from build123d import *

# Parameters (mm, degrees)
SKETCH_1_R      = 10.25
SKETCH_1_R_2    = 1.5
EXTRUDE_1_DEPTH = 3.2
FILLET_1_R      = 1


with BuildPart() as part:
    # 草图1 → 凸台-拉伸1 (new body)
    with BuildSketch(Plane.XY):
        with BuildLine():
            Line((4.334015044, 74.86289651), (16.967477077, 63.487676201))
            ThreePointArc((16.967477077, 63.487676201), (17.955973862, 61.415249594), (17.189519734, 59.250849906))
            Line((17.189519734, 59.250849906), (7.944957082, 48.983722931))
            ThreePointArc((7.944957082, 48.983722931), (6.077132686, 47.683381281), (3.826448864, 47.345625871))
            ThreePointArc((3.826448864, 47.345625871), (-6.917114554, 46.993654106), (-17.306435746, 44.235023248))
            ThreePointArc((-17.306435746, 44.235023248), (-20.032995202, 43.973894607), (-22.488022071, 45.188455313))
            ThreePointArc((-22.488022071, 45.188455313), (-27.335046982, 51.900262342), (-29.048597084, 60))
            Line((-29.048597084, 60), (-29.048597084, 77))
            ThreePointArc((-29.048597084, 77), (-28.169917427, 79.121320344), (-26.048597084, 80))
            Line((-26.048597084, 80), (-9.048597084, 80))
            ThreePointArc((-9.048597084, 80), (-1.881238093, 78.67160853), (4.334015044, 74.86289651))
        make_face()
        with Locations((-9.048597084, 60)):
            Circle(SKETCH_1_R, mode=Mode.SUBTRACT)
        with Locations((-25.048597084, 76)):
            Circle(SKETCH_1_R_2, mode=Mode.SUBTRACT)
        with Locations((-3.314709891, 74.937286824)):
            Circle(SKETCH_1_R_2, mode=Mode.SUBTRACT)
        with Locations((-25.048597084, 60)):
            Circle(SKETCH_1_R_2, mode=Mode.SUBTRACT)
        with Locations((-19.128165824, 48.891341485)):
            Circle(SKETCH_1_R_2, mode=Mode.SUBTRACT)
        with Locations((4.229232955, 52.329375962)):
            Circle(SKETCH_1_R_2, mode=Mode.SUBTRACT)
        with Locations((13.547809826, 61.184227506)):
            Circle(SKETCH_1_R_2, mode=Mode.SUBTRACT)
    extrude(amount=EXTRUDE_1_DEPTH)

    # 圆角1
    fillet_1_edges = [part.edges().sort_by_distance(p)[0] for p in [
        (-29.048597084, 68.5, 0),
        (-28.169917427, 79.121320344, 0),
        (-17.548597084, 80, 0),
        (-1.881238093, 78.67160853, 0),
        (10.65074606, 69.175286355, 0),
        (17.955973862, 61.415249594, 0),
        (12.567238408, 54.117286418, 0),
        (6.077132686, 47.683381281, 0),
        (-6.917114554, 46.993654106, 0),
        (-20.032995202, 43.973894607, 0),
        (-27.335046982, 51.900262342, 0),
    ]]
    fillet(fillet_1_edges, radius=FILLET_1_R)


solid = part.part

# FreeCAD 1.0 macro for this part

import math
import FreeCAD as App
import Part
import Sketcher
Q = App.Units.Quantity


def edges_at(feature, points):
    """Names of the edges that pass closest to the given points."""
    edges = feature.Shape.Edges
    near = lambda p: min(range(len(edges)), key=lambda i: edges[i].distToShape(Part.Vertex(*p))[0])
    return sorted({f"Edge{near(p) + 1}" for p in points})

doc = App.newDocument("Part")
params = doc.addObject("Spreadsheet::Sheet", "Params")
for row, (alias, value) in enumerate([
    ("sketch1_diameter", "3 mm"),
    ("sketch1_radius", "20 mm"),
    ("sketch1_radius2", "3 mm"),
    ("sketch1_radius3", "5 mm"),
    ("sketch1_diameter2", "20.5 mm"),
    ("pad1_length", "3.2 mm"),
    ("fillet_radius", "1 mm"),
], start=1):
    params.set(f"A{row}", alias)
    params.set(f"B{row}", "=" + value)
    params.setAlias(f"B{row}", alias)

body = doc.addObject("PartDesign::Body", "Body")

# Sketch on XY plane
sketch1 = doc.addObject("Sketcher::SketchObject", "Sketch")
body.addObject(sketch1)
sketch1.AttachmentSupport = (doc.XY_Plane, [""])
sketch1.MapMode = "FlatFace"
sketch1.addGeometry([
    Part.LineSegment(App.Vector(17, 63.5, 0), App.Vector(4.3, 74.9, 0)),  # 0
    Part.ArcOfCircle(Part.Circle(App.Vector(-9, 60, 0), App.Vector(0, 0, 1), 20), math.radians(48), math.radians(90)),  # 1
    Part.LineSegment(App.Vector(-9, 80, 0), App.Vector(-26, 80, 0)),  # 2
    Part.ArcOfCircle(Part.Circle(App.Vector(-26, 77, 0), App.Vector(0, 0, 1), 3), math.radians(90), math.radians(180)),  # 3
    Part.LineSegment(App.Vector(-29, 77, 0), App.Vector(-29, 60, 0)),  # 4
    Part.ArcOfCircle(Part.Circle(App.Vector(-9, 60, 0), App.Vector(0, 0, 1), 20), math.radians(180), math.radians(228)),  # 5
    Part.ArcOfCircle(Part.Circle(App.Vector(-19.1, 48.9, 0), App.Vector(0, 0, 1), 5), math.radians(-132), math.radians(-69)),  # 6
    Part.ArcOfCircle(Part.Circle(App.Vector(0, 0, 0), App.Vector(0, 0, 1), 47.5), math.radians(85), math.radians(111)),  # 7
    Part.ArcOfCircle(Part.Circle(App.Vector(4.2, 52.3, 0), App.Vector(0, 0, 1), 5), math.radians(-95), math.radians(-42)),  # 8
    Part.LineSegment(App.Vector(7.9, 49, 0), App.Vector(17.2, 59.3, 0)),  # 9
    Part.ArcOfCircle(Part.Circle(App.Vector(15, 61.3, 0), App.Vector(0, 0, 1), 3), math.radians(-42), math.radians(48)),  # 10
    Part.Circle(App.Vector(4.2, 52.3, 0), App.Vector(0, 0, 1), 1.5),  # 11
    Part.Circle(App.Vector(13.5, 61.2, 0), App.Vector(0, 0, 1), 1.5),  # 12
    Part.Circle(App.Vector(-19.1, 48.9, 0), App.Vector(0, 0, 1), 1.5),  # 13
    Part.Circle(App.Vector(-9, 60, 0), App.Vector(0, 0, 1), 10.2),  # 14
    Part.Circle(App.Vector(-25, 60, 0), App.Vector(0, 0, 1), 1.5),  # 15
    Part.Circle(App.Vector(-3.3, 74.9, 0), App.Vector(0, 0, 1), 1.5),  # 16
    Part.Circle(App.Vector(-25, 76, 0), App.Vector(0, 0, 1), 1.5),  # 17
], False)
sketch1.addConstraint([
    Sketcher.Constraint("Tangent", 0, 2, 1, 1),
    Sketcher.Constraint("Tangent", 1, 2, 2, 1),
    Sketcher.Constraint("Tangent", 2, 2, 3, 1),
    Sketcher.Constraint("Tangent", 3, 2, 4, 1),
    Sketcher.Constraint("Tangent", 4, 2, 5, 1),
    Sketcher.Constraint("Tangent", 5, 2, 6, 1),
    Sketcher.Constraint("Tangent", 6, 2, 7, 2),
    Sketcher.Constraint("Tangent", 7, 1, 8, 1),
    Sketcher.Constraint("Tangent", 8, 2, 9, 1),
    Sketcher.Constraint("Tangent", 9, 2, 10, 1),
    Sketcher.Constraint("Tangent", 10, 2, 0, 1),
    Sketcher.Constraint("Horizontal", 2),
    Sketcher.Constraint("Vertical", 4),
    Sketcher.Constraint("Coincident", 7, 3, -1, 1),
    Sketcher.Constraint("Coincident", 5, 3, 1, 3),
    Sketcher.Constraint("Coincident", 11, 3, 8, 3),
    Sketcher.Constraint("Coincident", 13, 3, 6, 3),
    Sketcher.Constraint("Coincident", 14, 3, 1, 3),
    Sketcher.Constraint("Equal", 1, 5),
    Sketcher.Constraint("Equal", 6, 8),
    Sketcher.Constraint("Equal", 3, 10),
    Sketcher.Constraint("Equal", 11, 12),
    Sketcher.Constraint("Equal", 12, 13),
    Sketcher.Constraint("Equal", 13, 15),
    Sketcher.Constraint("Equal", 15, 16),
    Sketcher.Constraint("Equal", 16, 17),
    Sketcher.Constraint("Perpendicular", 0, 9),
    Sketcher.Constraint("Horizontal", 14, 3, 15, 3),
    Sketcher.Constraint("Vertical", 15, 3, 17, 3),
    Sketcher.Constraint("Diameter", 11, 3.0),
    Sketcher.Constraint("Radius", 1, 20.0),
    Sketcher.Constraint("Radius", 3, 3.0),
    Sketcher.Constraint("Radius", 6, 5.0),
    Sketcher.Constraint("Diameter", 14, 20.5),
    Sketcher.Constraint("Radius", 7, 47.5),
    Sketcher.Constraint("Angle", 0, Q("138 deg")),
    Sketcher.Constraint("Distance", 0, 17.0),
    Sketcher.Constraint("DistanceY", -1, 1, 1, 3, 60.0),
    Sketcher.Constraint("DistanceY", -1, 1, 17, 3, 76.0),
    Sketcher.Constraint("DistanceX", 15, 3, 1, 3, 16.0),
    Sketcher.Constraint("DistanceX", 6, 3, 8, 3, 23.357399),
    Sketcher.Constraint("DistanceY", 7, 1, 12, 3, 13.838602),
    Sketcher.Constraint("DistanceX", -1, 1, 12, 3, 13.54781),
    Sketcher.Constraint("DistanceX", 16, 3, -1, 1, 3.31471),
    Sketcher.Constraint("DistanceY", 12, 3, 16, 3, 13.753059),
])
sketch1.setExpression("Constraints[29]", "Params.sketch1_diameter")
sketch1.setExpression("Constraints[30]", "Params.sketch1_radius")
sketch1.setExpression("Constraints[31]", "Params.sketch1_radius2")
sketch1.setExpression("Constraints[32]", "Params.sketch1_radius3")
sketch1.setExpression("Constraints[33]", "Params.sketch1_diameter2")
pad1 = doc.addObject("PartDesign::Pad", "Pad")
body.addObject(pad1)
pad1.Profile = sketch1
pad1.setExpression("Length", "Params.pad1_length")
doc.recompute()

fillet = doc.addObject("PartDesign::Fillet", "Fillet")
body.addObject(fillet)
fillet.Base = (pad1, edges_at(pad1, [
    (-29.049, 68.5, 0),
    (-28.17, 79.121, 0),
    (-17.549, 80, 0),
    (-1.881, 78.672, 0),
    (10.651, 69.175, 0),
    (17.956, 61.415, 0),
    (12.567, 54.117, 0),
    (6.077, 47.683, 0),
    (-6.917, 46.994, 0),
    (-20.033, 43.974, 0),
    (-27.335, 51.9, 0),
]))
fillet.setExpression("Radius", "Params.fillet_radius")

doc.recompute()
